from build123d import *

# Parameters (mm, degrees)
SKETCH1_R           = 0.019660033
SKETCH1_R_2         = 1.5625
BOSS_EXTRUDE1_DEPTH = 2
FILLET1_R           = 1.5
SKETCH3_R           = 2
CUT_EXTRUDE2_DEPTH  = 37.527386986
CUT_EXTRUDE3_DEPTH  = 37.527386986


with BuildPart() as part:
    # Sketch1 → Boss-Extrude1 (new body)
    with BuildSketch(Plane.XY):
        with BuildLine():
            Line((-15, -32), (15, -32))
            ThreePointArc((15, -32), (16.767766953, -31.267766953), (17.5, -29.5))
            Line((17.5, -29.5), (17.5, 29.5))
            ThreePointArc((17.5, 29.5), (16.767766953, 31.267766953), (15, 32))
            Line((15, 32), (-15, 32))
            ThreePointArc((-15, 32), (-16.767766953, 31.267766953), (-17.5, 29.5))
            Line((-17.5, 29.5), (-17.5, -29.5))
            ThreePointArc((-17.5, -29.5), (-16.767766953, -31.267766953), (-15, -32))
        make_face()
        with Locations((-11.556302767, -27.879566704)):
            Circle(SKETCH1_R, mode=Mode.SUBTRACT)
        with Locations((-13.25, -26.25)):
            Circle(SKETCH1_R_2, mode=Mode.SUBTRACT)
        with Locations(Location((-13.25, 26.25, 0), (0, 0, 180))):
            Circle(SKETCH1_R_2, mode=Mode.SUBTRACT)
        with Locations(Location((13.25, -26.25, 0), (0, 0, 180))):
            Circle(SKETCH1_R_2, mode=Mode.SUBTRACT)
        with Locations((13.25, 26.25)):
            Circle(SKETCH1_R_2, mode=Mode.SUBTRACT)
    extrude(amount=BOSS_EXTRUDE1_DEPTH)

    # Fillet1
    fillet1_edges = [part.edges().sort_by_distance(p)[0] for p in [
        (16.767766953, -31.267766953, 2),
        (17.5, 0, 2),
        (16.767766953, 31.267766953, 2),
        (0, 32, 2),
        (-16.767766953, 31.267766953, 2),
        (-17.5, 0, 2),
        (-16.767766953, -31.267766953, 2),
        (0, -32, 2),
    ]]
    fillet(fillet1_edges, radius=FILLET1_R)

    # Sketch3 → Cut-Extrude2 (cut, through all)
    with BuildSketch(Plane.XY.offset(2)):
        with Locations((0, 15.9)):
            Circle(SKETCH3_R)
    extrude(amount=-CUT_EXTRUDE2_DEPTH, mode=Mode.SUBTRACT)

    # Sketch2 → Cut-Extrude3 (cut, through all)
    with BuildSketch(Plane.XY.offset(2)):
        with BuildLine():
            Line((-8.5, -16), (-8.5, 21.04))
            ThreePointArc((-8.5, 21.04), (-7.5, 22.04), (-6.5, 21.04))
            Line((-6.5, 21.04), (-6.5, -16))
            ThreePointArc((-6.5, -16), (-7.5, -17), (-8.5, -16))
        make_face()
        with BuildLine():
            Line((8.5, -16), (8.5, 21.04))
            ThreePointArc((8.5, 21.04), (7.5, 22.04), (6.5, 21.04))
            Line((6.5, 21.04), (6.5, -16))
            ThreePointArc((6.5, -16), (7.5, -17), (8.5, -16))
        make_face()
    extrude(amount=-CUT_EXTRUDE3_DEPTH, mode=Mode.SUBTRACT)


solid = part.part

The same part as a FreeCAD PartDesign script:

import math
import FreeCAD as App
import Part
import Sketcher

V = App.Vector
Q = App.Units.Quantity


def edges_at(feature, points):
    """Names of the edges that pass closest to the given points."""
    edges = feature.Shape.Edges
    near = lambda p: min(range(len(edges)), key=lambda i: edges[i].distToShape(Part.Vertex(*p))[0])
    return sorted({f"Edge{near(p) + 1}" for p in points})

doc = App.newDocument("Part")
body = doc.addObject("PartDesign::Body", "Body")

sketch1 = body.newObject("Sketcher::SketchObject", "Sketch")
sketch1.AttachmentSupport = (doc.getObject("XY_Plane"), [""])
sketch1.MapMode = "FlatFace"
sketch1.addGeometry(Part.LineSegment(V(-15, -32, 0), V(15, -32, 0)), False)
sketch1.addGeometry(Part.ArcOfCircle(Part.Circle(V(15, -29.5, 0), V(0, 0, 1), 2.5), math.radians(-90), math.radians(0)), False)
sketch1.addGeometry(Part.LineSegment(V(17.5, -29.5, 0), V(17.5, 29.5, 0)), False)
sketch1.addGeometry(Part.ArcOfCircle(Part.Circle(V(15, 29.5, 0), V(0, 0, 1), 2.5), math.radians(0), math.radians(90)), False)
sketch1.addGeometry(Part.LineSegment(V(15, 32, 0), V(-15, 32, 0)), False)
sketch1.addGeometry(Part.ArcOfCircle(Part.Circle(V(-15, 29.5, 0), V(0, 0, 1), 2.5), math.radians(90), math.radians(180)), False)
sketch1.addGeometry(Part.LineSegment(V(-17.5, 29.5, 0), V(-17.5, -29.5, 0)), False)
sketch1.addGeometry(Part.ArcOfCircle(Part.Circle(V(-15, -29.5, 0), V(0, 0, 1), 2.5), math.radians(180), math.radians(270)), False)
sketch1.addGeometry(Part.Circle(V(-13.25, -26.25, 0), V(0, 0, 1), 1.5625), False)
sketch1.addGeometry(Part.Circle(V(-11.556303, -27.879567, 0), V(0, 0, 1), 0.01966), False)
sketch1.addGeometry(Part.Circle(V(13.25, -26.25, 0), V(0, 0, 1), 1.5625), False)
sketch1.addGeometry(Part.Circle(V(-13.25, 26.25, 0), V(0, 0, 1), 1.5625), False)
sketch1.addGeometry(Part.Circle(V(13.25, 26.25, 0), V(0, 0, 1), 1.5625), False)
sketch1.addConstraint(Sketcher.Constraint("Tangent", 0, 2, 1, 1))
sketch1.addConstraint(Sketcher.Constraint("Tangent", 1, 2, 2, 1))
sketch1.addConstraint(Sketcher.Constraint("Tangent", 2, 2, 3, 1))
sketch1.addConstraint(Sketcher.Constraint("Tangent", 3, 2, 4, 1))
sketch1.addConstraint(Sketcher.Constraint("Tangent", 4, 2, 5, 1))
sketch1.addConstraint(Sketcher.Constraint("Tangent", 5, 2, 6, 1))
sketch1.addConstraint(Sketcher.Constraint("Tangent", 6, 2, 7, 1))
sketch1.addConstraint(Sketcher.Constraint("Tangent", 7, 2, 0, 1))
sketch1.addConstraint(Sketcher.Constraint("Horizontal", 0))
sketch1.addConstraint(Sketcher.Constraint("Vertical", 2))
sketch1.addConstraint(Sketcher.Constraint("Horizontal", 4))
sketch1.addConstraint(Sketcher.Constraint("Vertical", 6))
sketch1.addConstraint(Sketcher.Constraint("Equal", 1, 3))
sketch1.addConstraint(Sketcher.Constraint("Equal", 3, 5))
sketch1.addConstraint(Sketcher.Constraint("Equal", 5, 7))
sketch1.addConstraint(Sketcher.Constraint("Equal", 8, 10))
sketch1.addConstraint(Sketcher.Constraint("Equal", 10, 11))
sketch1.addConstraint(Sketcher.Constraint("Equal", 11, 12))
sketch1.addConstraint(Sketcher.Constraint("Symmetric", 1, 3, 5, 3, -1, 1))
sketch1.addConstraint(Sketcher.Constraint("Symmetric", 10, 3, 11, 3, -1, 1))
sketch1.addConstraint(Sketcher.Constraint("Symmetric", 8, 3, 12, 3, -1, 1))
sketch1.addConstraint(Sketcher.Constraint("Symmetric", 8, 3, 10, 3, -2))
sketch1.addConstraint(Sketcher.Constraint("Radius", 1, Q("2.5 mm")))
sketch1.addConstraint(Sketcher.Constraint("DistanceX", 0, 1, 0, 2, Q("30 mm")))
sketch1.addConstraint(Sketcher.Constraint("DistanceY", 2, 1, 2, 2, Q("59 mm")))
sketch1.addConstraint(Sketcher.Constraint("Diameter", 8, Q("3.125 mm")))
sketch1.addConstraint(Sketcher.Constraint("DistanceX", 8, 3, 10, 3, Q("26.5 mm")))
sketch1.addConstraint(Sketcher.Constraint("DistanceY", 8, 3, 11, 3, Q("52.5 mm")))
sketch1.addConstraint(Sketcher.Constraint("Diameter", 9, Q("0.03932 mm")))
sketch1.addConstraint(Sketcher.Constraint("DistanceX", 9, 3, -1, 1, Q("11.556303 mm")))
sketch1.addConstraint(Sketcher.Constraint("DistanceY", 9, 3, -1, 1, Q("27.879567 mm")))
pad1 = body.newObject("PartDesign::Pad", "Pad")
pad1.Profile = sketch1
pad1.Length = 2
doc.recompute()

fillet = body.newObject("PartDesign::Fillet", "Fillet")
fillet.Base = (pad1, edges_at(pad1, [
    (16.768, -31.268, 2),
    (17.5, 0, 2),
    (16.768, 31.268, 2),
    (0, 32, 2),
    (-16.768, 31.268, 2),
    (-17.5, 0, 2),
    (-16.768, -31.268, 2),
    (0, -32, 2),
]))
fillet.Radius = 1.5

sketch2 = body.newObject("Sketcher::SketchObject", "Sketch001")
sketch2.AttachmentSupport = (doc.getObject("XY_Plane"), [""])
sketch2.MapMode = "FlatFace"
sketch2.AttachmentOffset = App.Placement(V(0, 0, 2), App.Rotation())
sketch2.addGeometry(Part.Circle(V(0, 15.9, 0), V(0, 0, 1), 2), False)
sketch2.addConstraint(Sketcher.Constraint("PointOnObject", 0, 3, -2))
sketch2.addConstraint(Sketcher.Constraint("Diameter", 0, Q("4 mm")))
sketch2.addConstraint(Sketcher.Constraint("DistanceY", -1, 1, 0, 3, Q("15.9 mm")))
pocket1 = body.newObject("PartDesign::Pocket", "Pocket")
pocket1.Profile = sketch2
pocket1.Type = "ThroughAll"

sketch3 = body.newObject("Sketcher::SketchObject", "Sketch002")
sketch3.AttachmentSupport = (doc.getObject("XY_Plane"), [""])
sketch3.MapMode = "FlatFace"
sketch3.AttachmentOffset = App.Placement(V(0, 0, 2), App.Rotation())
sketch3.addGeometry(Part.LineSegment(V(-8.5, 21.04, 0), V(-8.5, -16, 0)), False)
sketch3.addGeometry(Part.ArcOfCircle(Part.Circle(V(-7.5, -16, 0), V(0, 0, 1), 1), math.radians(180), math.radians(360)), False)
sketch3.addGeometry(Part.LineSegment(V(-6.5, -16, 0), V(-6.5, 21.04, 0)), False)
sketch3.addGeometry(Part.ArcOfCircle(Part.Circle(V(-7.5, 21.04, 0), V(0, 0, 1), 1), math.radians(0), math.radians(180)), False)
sketch3.addGeometry(Part.LineSegment(V(8.5, -16, 0), V(8.5, 21.04, 0)), False)
sketch3.addGeometry(Part.ArcOfCircle(Part.Circle(V(7.5, 21.04, 0), V(0, 0, 1), 1), math.radians(0), math.radians(180)), False)
sketch3.addGeometry(Part.LineSegment(V(6.5, 21.04, 0), V(6.5, -16, 0)), False)
sketch3.addGeometry(Part.ArcOfCircle(Part.Circle(V(7.5, -16, 0), V(0, 0, 1), 1), math.radians(180), math.radians(360)), False)
sketch3.addConstraint(Sketcher.Constraint("Tangent", 0, 2, 1, 1))
sketch3.addConstraint(Sketcher.Constraint("Tangent", 1, 2, 2, 1))
sketch3.addConstraint(Sketcher.Constraint("Tangent", 2, 2, 3, 1))
sketch3.addConstraint(Sketcher.Constraint("Tangent", 3, 2, 0, 1))
sketch3.addConstraint(Sketcher.Constraint("Tangent", 4, 2, 5, 1))
sketch3.addConstraint(Sketcher.Constraint("Tangent", 5, 2, 6, 1))
sketch3.addConstraint(Sketcher.Constraint("Tangent", 6, 2, 7, 1))
sketch3.addConstraint(Sketcher.Constraint("Tangent", 7, 2, 4, 1))
sketch3.addConstraint(Sketcher.Constraint("Vertical", 0))
sketch3.addConstraint(Sketcher.Constraint("Vertical", 2))
sketch3.addConstraint(Sketcher.Constraint("Vertical", 4))
sketch3.addConstraint(Sketcher.Constraint("Vertical", 6))
sketch3.addConstraint(Sketcher.Constraint("Equal", 3, 5))
sketch3.addConstraint(Sketcher.Constraint("Symmetric", 3, 3, 5, 3, -2))
sketch3.addConstraint(Sketcher.Constraint("Horizontal", 1, 3, 7, 3))
sketch3.addConstraint(Sketcher.Constraint("Radius", 1, Q("1 mm")))
sketch3.addConstraint(Sketcher.Constraint("DistanceY", 1, 3, -1, 1, Q("16 mm")))
sketch3.addConstraint(Sketcher.Constraint("DistanceX", 3, 3, 5, 3, Q("15 mm")))
sketch3.addConstraint(Sketcher.Constraint("DistanceY", 0, 2, 0, 1, Q("37.04 mm")))
pocket2 = body.newObject("PartDesign::Pocket", "Pocket001")
pocket2.Profile = sketch3
pocket2.Type = "ThroughAll"

doc.recompute()
